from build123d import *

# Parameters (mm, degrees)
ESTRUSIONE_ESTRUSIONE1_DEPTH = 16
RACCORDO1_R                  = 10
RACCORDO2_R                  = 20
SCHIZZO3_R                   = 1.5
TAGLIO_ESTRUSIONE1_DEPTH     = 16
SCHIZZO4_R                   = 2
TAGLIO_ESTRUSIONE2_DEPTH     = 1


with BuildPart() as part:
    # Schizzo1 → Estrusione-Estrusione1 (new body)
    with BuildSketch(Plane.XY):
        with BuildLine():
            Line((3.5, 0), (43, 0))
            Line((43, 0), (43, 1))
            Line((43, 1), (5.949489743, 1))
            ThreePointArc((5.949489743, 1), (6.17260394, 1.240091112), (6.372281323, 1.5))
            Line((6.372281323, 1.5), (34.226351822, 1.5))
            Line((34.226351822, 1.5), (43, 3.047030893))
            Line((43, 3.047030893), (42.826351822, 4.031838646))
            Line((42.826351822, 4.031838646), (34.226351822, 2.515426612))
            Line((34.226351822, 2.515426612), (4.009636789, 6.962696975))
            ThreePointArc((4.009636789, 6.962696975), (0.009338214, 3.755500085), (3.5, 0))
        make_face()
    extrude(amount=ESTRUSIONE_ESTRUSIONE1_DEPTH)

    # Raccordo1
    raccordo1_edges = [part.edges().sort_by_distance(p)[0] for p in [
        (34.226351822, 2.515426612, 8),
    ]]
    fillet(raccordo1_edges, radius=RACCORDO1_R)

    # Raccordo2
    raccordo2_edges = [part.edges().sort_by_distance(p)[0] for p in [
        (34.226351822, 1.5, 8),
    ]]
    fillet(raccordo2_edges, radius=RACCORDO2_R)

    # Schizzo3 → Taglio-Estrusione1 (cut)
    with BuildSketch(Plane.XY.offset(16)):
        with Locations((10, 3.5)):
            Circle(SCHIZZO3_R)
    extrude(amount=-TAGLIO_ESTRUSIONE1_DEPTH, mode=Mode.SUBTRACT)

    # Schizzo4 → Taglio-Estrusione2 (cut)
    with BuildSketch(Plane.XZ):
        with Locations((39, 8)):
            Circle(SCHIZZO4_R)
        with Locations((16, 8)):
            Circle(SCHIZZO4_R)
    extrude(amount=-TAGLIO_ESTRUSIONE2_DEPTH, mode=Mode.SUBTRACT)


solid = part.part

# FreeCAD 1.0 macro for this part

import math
import FreeCAD as App
import Part
import Sketcher
Q = App.Units.Quantity


def edges_at(feature, points):
    """Names of the edges that pass closest to the given points."""
    edges = feature.Shape.Edges
    near = lambda p: min(range(len(edges)), key=lambda i: edges[i].distToShape(Part.Vertex(*p))[0])
    return sorted({f"Edge{near(p) + 1}" for p in points})

doc = App.newDocument("Part")
body = doc.addObject("PartDesign::Body", "Body")

sketch1 = body.newObject("Sketcher::SketchObject", "Sketch")
sketch1.AttachmentSupport = (doc.getObject("XY_Plane"), [""])
sketch1.MapMode = "FlatFace"
sketch1.addGeometry([
    Part.LineSegment(App.Vector(3.5, 0, 0), App.Vector(43, 0, 0)),
    Part.LineSegment(App.Vector(43, 0, 0), App.Vector(43, 1, 0)),
    Part.LineSegment(App.Vector(43, 1, 0), App.Vector(5.94949, 1, 0)),
    Part.ArcOfCircle(Part.Circle(App.Vector(3.5, 3.5, 0), App.Vector(0, 0, 1), 3.5), math.radians(-45.584691), math.radians(-34.849904)),
    Part.LineSegment(App.Vector(6.372281, 1.5, 0), App.Vector(34.226352, 1.5, 0)),
    Part.LineSegment(App.Vector(34.226352, 1.5, 0), App.Vector(43, 3.047031, 0)),
    Part.LineSegment(App.Vector(43, 3.047031, 0), App.Vector(42.826352, 4.031839, 0)),
    Part.LineSegment(App.Vector(42.826352, 4.031839, 0), App.Vector(34.226352, 2.515427, 0)),
    Part.LineSegment(App.Vector(34.226352, 2.515427, 0), App.Vector(4.009637, 6.962697, 0)),
    Part.ArcOfCircle(Part.Circle(App.Vector(3.5, 3.5, 0), App.Vector(0, 0, 1), 3.5), math.radians(81.627366), math.radians(270)),
], False)
sketch1.addConstraint([
    Sketcher.Constraint("Coincident", 0, 2, 1, 1),
    Sketcher.Constraint("Coincident", 1, 2, 2, 1),
    Sketcher.Constraint("Coincident", 2, 2, 3, 1),
    Sketcher.Constraint("Coincident", 3, 2, 4, 1),
    Sketcher.Constraint("Coincident", 4, 2, 5, 1),
    Sketcher.Constraint("Coincident", 5, 2, 6, 1),
    Sketcher.Constraint("Coincident", 6, 2, 7, 1),
    Sketcher.Constraint("Coincident", 7, 2, 8, 1),
    Sketcher.Constraint("Tangent", 8, 2, 9, 1),
    Sketcher.Constraint("Tangent", 9, 2, 0, 1),
    Sketcher.Constraint("Horizontal", 0),
    Sketcher.Constraint("Vertical", 1),
    Sketcher.Constraint("Horizontal", 2),
    Sketcher.Constraint("Horizontal", 4),
    Sketcher.Constraint("Coincident", 9, 3, 3, 3),
    Sketcher.Constraint("Equal", 3, 9),
    Sketcher.Constraint("PointOnObject", 0, 2, -1),
    Sketcher.Constraint("Perpendicular", 5, 6),
    Sketcher.Constraint("Perpendicular", 6, 7),
    Sketcher.Constraint("Vertical", 1, 2, 5, 2),
    Sketcher.Constraint("Vertical", 4, 2, 7, 2),
    Sketcher.Constraint("Radius", 3, Q("3.5 mm")),
    Sketcher.Constraint("DistanceY", 1, 1, 1, 2, Q("1 mm")),
    Sketcher.Constraint("Angle", 5, Q("10 deg")),
    Sketcher.Constraint("Distance", 6, Q("1 mm")),
    Sketcher.Constraint("DistanceX", 0, 1, 0, 2, Q("39.5 mm")),
    Sketcher.Constraint("DistanceX", -1, 1, 0, 2, Q("43 mm")),
    Sketcher.Constraint("DistanceY", 3, 2, 3, 3, Q("2 mm")),
    Sketcher.Constraint("DistanceX", 4, 2, 6, 2, Q("8.6 mm")),
])
pad1 = body.newObject("PartDesign::Pad", "Pad")
pad1.Profile = sketch1
pad1.Length = 16
doc.recompute()

fillet = body.newObject("PartDesign::Fillet", "Fillet")
fillet.Base = (pad1, edges_at(pad1, [(34.226, 2.515, 8)]))
fillet.Radius = 10
doc.recompute()

fillet2 = body.newObject("PartDesign::Fillet", "Fillet001")
fillet2.Base = (fillet, edges_at(fillet, [(34.226, 1.5, 8)]))
fillet2.Radius = 20

sketch2 = body.newObject("Sketcher::SketchObject", "Sketch001")
sketch2.AttachmentSupport = (doc.getObject("XY_Plane"), [""])
sketch2.MapMode = "FlatFace"
sketch2.AttachmentOffset = App.Placement(App.Vector(0, 0, 16), App.Rotation())
sketch2.addGeometry(Part.Circle(App.Vector(10, 3.5, 0), App.Vector(0, 0, 1), 1.5), False)
sketch2.addConstraint([
    Sketcher.Constraint("Diameter", 0, Q("3 mm")),
    Sketcher.Constraint("DistanceX", -1, 1, 0, 3, Q("10 mm")),
    Sketcher.Constraint("DistanceY", -1, 1, 0, 3, Q("3.5 mm")),
])
pocket1 = body.newObject("PartDesign::Pocket", "Pocket")
pocket1.Profile = sketch2
pocket1.Length = 16

sketch3 = body.newObject("Sketcher::SketchObject", "Sketch002")
sketch3.AttachmentSupport = (doc.getObject("XZ_Plane"), [""])
sketch3.MapMode = "FlatFace"
sketch3.addGeometry([
    Part.Circle(App.Vector(39, 8, 0), App.Vector(0, 0, 1), 2),
    Part.Circle(App.Vector(16, 8, 0), App.Vector(0, 0, 1), 2),
], False)
sketch3.addConstraint([
    Sketcher.Constraint("Equal", 0, 1),
    Sketcher.Constraint("Horizontal", 0, 3, 1, 3),
    Sketcher.Constraint("Diameter", 0, Q("4 mm")),
    Sketcher.Constraint("DistanceX", -1, 1, 0, 3, Q("39 mm")),
    Sketcher.Constraint("DistanceY", -1, 1, 0, 3, Q("8 mm")),
    Sketcher.Constraint("DistanceX", -1, 1, 1, 3, Q("16 mm")),
])
pocket2 = body.newObject("PartDesign::Pocket", "Pocket001")
pocket2.Profile = sketch3
pocket2.Length = 1

doc.recompute()
